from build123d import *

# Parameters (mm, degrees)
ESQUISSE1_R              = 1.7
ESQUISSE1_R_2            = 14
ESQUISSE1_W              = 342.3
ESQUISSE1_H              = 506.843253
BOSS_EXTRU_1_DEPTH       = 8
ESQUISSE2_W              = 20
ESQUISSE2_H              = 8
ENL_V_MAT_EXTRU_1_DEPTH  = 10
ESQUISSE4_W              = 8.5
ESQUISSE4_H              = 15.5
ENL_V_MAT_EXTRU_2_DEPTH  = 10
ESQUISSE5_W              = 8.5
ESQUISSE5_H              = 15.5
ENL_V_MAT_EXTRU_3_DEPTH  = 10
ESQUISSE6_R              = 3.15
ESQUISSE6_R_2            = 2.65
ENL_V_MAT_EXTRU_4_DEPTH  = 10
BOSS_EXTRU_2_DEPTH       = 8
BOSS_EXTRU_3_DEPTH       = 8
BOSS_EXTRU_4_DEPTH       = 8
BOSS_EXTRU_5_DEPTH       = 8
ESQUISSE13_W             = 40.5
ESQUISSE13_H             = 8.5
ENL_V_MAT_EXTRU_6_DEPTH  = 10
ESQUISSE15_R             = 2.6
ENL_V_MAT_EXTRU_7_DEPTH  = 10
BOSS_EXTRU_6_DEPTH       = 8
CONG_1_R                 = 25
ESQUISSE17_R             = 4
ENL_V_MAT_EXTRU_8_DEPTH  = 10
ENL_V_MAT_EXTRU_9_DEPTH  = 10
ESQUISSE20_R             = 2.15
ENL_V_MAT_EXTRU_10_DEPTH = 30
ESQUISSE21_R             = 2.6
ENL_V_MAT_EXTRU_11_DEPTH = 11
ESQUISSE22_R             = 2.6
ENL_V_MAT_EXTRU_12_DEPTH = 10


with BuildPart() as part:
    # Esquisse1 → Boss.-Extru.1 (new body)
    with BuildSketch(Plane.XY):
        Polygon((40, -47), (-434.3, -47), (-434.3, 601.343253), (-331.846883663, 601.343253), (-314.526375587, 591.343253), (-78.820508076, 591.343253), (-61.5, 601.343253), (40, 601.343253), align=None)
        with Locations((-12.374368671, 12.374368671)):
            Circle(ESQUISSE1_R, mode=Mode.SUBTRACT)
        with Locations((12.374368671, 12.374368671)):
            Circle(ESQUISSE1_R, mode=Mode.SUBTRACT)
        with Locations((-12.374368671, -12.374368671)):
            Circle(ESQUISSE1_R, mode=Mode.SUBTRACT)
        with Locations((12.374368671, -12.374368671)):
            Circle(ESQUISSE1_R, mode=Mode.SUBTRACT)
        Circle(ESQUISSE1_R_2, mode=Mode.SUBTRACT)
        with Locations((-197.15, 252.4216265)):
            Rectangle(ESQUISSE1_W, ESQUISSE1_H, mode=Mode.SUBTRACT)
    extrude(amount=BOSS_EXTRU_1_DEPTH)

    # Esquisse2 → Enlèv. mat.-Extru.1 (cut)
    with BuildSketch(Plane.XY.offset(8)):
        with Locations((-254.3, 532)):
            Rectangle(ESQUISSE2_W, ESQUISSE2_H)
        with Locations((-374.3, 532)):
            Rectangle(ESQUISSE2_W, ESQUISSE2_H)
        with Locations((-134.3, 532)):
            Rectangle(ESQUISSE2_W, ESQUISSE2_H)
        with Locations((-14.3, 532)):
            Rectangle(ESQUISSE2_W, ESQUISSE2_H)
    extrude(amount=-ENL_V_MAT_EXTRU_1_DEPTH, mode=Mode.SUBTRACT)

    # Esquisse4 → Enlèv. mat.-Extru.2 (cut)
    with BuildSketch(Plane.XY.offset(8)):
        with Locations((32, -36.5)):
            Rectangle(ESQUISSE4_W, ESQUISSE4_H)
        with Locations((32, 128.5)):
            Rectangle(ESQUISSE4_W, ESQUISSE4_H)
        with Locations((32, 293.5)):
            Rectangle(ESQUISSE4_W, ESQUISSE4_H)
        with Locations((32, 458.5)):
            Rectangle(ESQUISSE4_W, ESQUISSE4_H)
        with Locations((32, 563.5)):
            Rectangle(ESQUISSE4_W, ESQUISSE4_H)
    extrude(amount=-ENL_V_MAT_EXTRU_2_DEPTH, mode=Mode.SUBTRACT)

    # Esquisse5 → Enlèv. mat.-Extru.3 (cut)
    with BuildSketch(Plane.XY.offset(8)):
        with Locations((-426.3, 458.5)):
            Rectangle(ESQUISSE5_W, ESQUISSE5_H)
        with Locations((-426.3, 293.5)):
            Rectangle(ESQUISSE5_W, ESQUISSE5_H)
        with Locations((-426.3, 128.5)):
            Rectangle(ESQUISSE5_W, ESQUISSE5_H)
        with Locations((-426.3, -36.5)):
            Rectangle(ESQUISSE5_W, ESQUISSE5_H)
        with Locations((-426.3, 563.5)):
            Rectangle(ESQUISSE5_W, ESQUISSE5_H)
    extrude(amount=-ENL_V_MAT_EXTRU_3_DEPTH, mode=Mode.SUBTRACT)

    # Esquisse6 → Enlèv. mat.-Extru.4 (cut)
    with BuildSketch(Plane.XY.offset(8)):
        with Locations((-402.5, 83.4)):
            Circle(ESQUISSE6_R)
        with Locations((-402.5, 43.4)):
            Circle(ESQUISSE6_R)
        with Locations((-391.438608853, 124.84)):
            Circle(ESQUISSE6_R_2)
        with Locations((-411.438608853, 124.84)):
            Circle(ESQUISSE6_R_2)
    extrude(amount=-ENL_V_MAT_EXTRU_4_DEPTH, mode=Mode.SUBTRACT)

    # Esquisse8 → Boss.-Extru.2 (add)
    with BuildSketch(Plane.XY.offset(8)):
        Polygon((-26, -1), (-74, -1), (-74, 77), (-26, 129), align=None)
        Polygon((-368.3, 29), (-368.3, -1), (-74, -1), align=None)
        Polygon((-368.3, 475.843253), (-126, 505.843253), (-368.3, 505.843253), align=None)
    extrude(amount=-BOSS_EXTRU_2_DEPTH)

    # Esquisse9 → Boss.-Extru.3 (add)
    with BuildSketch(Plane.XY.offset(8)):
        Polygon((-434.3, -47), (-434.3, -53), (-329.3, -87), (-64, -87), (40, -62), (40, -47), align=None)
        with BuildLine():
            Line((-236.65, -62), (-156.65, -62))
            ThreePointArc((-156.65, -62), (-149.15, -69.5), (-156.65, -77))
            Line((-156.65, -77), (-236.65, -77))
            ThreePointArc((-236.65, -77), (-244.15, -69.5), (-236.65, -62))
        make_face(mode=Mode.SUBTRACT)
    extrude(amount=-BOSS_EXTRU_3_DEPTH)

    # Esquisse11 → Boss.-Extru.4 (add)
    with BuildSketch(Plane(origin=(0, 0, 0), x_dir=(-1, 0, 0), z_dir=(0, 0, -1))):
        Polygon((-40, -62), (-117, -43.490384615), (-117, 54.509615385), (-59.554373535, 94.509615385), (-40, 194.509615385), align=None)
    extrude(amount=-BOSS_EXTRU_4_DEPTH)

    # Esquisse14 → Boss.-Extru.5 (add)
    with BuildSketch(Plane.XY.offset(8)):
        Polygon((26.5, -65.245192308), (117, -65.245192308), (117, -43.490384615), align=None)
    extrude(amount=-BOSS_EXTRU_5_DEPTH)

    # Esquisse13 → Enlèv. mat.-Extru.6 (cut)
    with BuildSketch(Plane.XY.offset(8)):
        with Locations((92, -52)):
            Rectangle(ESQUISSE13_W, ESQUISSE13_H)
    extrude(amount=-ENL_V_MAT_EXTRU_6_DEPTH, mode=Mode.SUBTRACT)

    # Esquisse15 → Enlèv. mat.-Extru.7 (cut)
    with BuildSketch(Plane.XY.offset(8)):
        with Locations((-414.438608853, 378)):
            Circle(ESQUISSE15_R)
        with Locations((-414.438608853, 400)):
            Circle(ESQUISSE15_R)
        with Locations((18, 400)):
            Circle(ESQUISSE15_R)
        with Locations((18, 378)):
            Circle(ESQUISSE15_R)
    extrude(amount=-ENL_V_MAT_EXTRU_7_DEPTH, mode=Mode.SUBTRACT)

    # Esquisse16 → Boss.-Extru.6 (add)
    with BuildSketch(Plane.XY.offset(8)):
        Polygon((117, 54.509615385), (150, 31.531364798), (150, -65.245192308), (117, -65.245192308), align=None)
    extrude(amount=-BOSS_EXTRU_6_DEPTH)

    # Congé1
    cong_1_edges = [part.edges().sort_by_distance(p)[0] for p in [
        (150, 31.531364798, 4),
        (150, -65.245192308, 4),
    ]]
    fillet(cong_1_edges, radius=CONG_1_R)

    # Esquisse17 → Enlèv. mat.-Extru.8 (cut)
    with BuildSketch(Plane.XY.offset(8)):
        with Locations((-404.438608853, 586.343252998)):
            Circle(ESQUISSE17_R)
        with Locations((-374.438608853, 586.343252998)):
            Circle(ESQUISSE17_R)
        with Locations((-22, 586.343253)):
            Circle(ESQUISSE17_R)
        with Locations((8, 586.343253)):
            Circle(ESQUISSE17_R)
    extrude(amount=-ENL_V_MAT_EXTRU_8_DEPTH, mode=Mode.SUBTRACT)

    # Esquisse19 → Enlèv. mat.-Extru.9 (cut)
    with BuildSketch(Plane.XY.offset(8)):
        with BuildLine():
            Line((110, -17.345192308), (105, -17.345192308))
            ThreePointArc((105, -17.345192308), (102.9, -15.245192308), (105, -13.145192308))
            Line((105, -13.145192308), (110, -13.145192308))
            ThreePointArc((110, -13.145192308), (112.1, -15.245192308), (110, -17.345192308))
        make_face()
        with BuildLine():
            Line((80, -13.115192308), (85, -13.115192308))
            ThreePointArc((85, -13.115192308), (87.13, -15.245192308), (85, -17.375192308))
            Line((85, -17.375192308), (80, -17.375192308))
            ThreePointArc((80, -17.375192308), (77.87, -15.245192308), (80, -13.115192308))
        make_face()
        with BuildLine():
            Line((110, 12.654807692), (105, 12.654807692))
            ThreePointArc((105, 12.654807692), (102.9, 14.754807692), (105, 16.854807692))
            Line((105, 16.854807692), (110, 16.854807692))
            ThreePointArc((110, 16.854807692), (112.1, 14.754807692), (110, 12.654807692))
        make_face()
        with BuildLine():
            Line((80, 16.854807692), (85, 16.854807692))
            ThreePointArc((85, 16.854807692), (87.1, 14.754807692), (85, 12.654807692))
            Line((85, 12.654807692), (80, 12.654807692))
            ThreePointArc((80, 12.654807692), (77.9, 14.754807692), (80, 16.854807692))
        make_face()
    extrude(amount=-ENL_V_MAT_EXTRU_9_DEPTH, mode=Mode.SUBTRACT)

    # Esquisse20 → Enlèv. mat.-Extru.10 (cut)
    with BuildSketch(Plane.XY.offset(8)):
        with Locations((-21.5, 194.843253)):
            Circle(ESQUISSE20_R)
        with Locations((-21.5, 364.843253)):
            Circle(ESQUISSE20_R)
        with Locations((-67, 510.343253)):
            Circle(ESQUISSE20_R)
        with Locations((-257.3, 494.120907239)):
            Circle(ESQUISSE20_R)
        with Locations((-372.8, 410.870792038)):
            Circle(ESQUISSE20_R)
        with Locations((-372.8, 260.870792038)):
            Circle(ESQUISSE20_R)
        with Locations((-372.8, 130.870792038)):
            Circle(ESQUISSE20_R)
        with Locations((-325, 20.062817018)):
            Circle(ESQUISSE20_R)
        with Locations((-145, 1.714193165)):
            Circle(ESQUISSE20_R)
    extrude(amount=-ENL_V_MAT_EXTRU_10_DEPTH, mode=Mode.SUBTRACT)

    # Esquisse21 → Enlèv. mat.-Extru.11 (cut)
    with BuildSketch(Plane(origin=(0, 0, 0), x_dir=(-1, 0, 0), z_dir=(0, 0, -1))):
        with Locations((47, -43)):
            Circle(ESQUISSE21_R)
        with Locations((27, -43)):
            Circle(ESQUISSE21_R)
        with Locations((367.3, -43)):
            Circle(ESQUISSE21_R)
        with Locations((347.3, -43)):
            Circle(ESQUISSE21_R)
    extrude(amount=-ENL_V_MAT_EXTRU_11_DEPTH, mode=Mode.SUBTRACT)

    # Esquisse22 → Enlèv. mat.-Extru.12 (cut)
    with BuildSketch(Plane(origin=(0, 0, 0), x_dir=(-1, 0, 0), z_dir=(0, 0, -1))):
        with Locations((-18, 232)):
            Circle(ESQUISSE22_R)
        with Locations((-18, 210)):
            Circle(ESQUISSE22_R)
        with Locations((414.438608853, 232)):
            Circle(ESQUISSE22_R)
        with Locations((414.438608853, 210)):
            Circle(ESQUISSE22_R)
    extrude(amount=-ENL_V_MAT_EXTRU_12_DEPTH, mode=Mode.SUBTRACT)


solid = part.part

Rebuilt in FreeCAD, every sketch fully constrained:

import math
import FreeCAD as App
import Part
import Sketcher
Q = App.Units.Quantity


def edges_at(feature, points):
    """Names of the edges that pass closest to the given points."""
    edges = feature.Shape.Edges
    near = lambda p: min(range(len(edges)), key=lambda i: edges[i].distToShape(Part.Vertex(*p))[0])
    return sorted({f"Edge{near(p) + 1}" for p in points})

doc = App.newDocument("Part")
body = doc.addObject("PartDesign::Body", "Body")

# Sketch on XY plane
sketch1 = body.newObject("Sketcher::SketchObject", "Sketch")
sketch1.AttachmentSupport = (doc.getObject("XY_Plane"), [""])
sketch1.MapMode = "FlatFace"
sketch1.addGeometry([
    Part.LineSegment(App.Vector(-434.3, -47, 0), App.Vector(40, -47, 0)),  # 0
    Part.LineSegment(App.Vector(40, -47, 0), App.Vector(40, 601.3, 0)),  # 1
    Part.LineSegment(App.Vector(40, 601.3, 0), App.Vector(-61.5, 601.3, 0)),  # 2
    Part.LineSegment(App.Vector(-61.5, 601.3, 0), App.Vector(-78.8, 591.3, 0)),  # 3
    Part.LineSegment(App.Vector(-78.8, 591.3, 0), App.Vector(-314.5, 591.3, 0)),  # 4
    Part.LineSegment(App.Vector(-314.5, 591.3, 0), App.Vector(-331.8, 601.3, 0)),  # 5
    Part.LineSegment(App.Vector(-331.8, 601.3, 0), App.Vector(-434.3, 601.3, 0)),  # 6
    Part.LineSegment(App.Vector(-434.3, 601.3, 0), App.Vector(-434.3, -47, 0)),  # 7
    Part.Circle(App.Vector(12.4, -12.4, 0), App.Vector(0, 0, 1), 1.7),  # 8
    Part.Circle(App.Vector(0, 0, 0), App.Vector(0, 0, 1), 14),  # 9
    Part.Circle(App.Vector(12.4, 12.4, 0), App.Vector(0, 0, 1), 1.7),  # 10
    Part.Circle(App.Vector(-12.4, -12.4, 0), App.Vector(0, 0, 1), 1.7),  # 11
    Part.Circle(App.Vector(-12.4, 12.4, 0), App.Vector(0, 0, 1), 1.7),  # 12
    Part.LineSegment(App.Vector(-368.3, -1, 0), App.Vector(-368.3, 505.8, 0)),  # 13
    Part.LineSegment(App.Vector(-368.3, 505.8, 0), App.Vector(-26, 505.8, 0)),  # 14
    Part.LineSegment(App.Vector(-26, 505.8, 0), App.Vector(-26, -1, 0)),  # 15
    Part.LineSegment(App.Vector(-26, -1, 0), App.Vector(-368.3, -1, 0)),  # 16
], False)
sketch1.addConstraint([
    Sketcher.Constraint("Coincident", 0, 2, 1, 1),
    Sketcher.Constraint("Coincident", 1, 2, 2, 1),
    Sketcher.Constraint("Coincident", 2, 2, 3, 1),
    Sketcher.Constraint("Coincident", 3, 2, 4, 1),
    Sketcher.Constraint("Coincident", 4, 2, 5, 1),
    Sketcher.Constraint("Coincident", 5, 2, 6, 1),
    Sketcher.Constraint("Coincident", 6, 2, 7, 1),
    Sketcher.Constraint("Coincident", 7, 2, 0, 1),
    Sketcher.Constraint("Coincident", 13, 2, 14, 1),
    Sketcher.Constraint("Coincident", 14, 2, 15, 1),
    Sketcher.Constraint("Coincident", 15, 2, 16, 1),
    Sketcher.Constraint("Coincident", 16, 2, 13, 1),
    Sketcher.Constraint("Horizontal", 0),
    Sketcher.Constraint("Vertical", 1),
    Sketcher.Constraint("Horizontal", 2),
    Sketcher.Constraint("Horizontal", 4),
    Sketcher.Constraint("Horizontal", 6),
    Sketcher.Constraint("Vertical", 7),
    Sketcher.Constraint("Vertical", 13),
    Sketcher.Constraint("Horizontal", 14),
    Sketcher.Constraint("Vertical", 15),
    Sketcher.Constraint("Horizontal", 16),
    Sketcher.Constraint("Coincident", 9, 3, -1, 1),
    Sketcher.Constraint("Equal", 8, 10),
    Sketcher.Constraint("Equal", 10, 11),
    Sketcher.Constraint("Equal", 11, 12),
    Sketcher.Constraint("Symmetric", 10, 3, 11, 3, -1, 1),
    Sketcher.Constraint("Symmetric", 8, 3, 12, 3, -1, 1),
    Sketcher.Constraint("Symmetric", 8, 3, 11, 3, -2),
    Sketcher.Constraint("Horizontal", 2, 2, 5, 2),
    Sketcher.Constraint("Equal", 3, 5),
    Sketcher.Constraint("Diameter", 9, Q("28 mm")),
    Sketcher.Constraint("Diameter", 8, Q("3.4 mm")),
    Sketcher.Constraint("Angle", 3, Q("-150 deg")),
    Sketcher.Constraint("Distance", 3, Q("20 mm")),
    Sketcher.Constraint("DistanceX", 0, 1, 0, 2, Q("474.3 mm")),
    Sketcher.Constraint("DistanceX", 2, 2, 2, 1, Q("101.5 mm")),
    Sketcher.Constraint("DistanceX", 14, 1, 14, 2, Q("342.3 mm")),
    Sketcher.Constraint("DistanceX", -1, 1, 0, 2, Q("40 mm")),
    Sketcher.Constraint("DistanceY", 0, 2, -1, 1, Q("47 mm")),
    Sketcher.Constraint("DistanceX", 14, 2, -1, 1, Q("26 mm")),
    Sketcher.Constraint("DistanceY", 15, 2, -1, 1, Q("1 mm")),
    Sketcher.Constraint("DistanceY", 13, 2, 4, 2, Q("85.5 mm")),
    Sketcher.Constraint("DistanceX", 4, 2, 4, 1, Q("235.705868 mm")),
    Sketcher.Constraint("DistanceY", 1, 1, 1, 2, Q("648.343253 mm")),
    Sketcher.Constraint("DistanceX", -1, 1, 8, 3, Q("12.374369 mm")),
    Sketcher.Constraint("DistanceY", 8, 3, -1, 1, Q("12.374369 mm")),
])
pad1 = body.newObject("PartDesign::Pad", "Pad")
pad1.Profile = sketch1
pad1.Length = 8

# Sketch on XY plane
sketch2 = body.newObject("Sketcher::SketchObject", "Sketch001")
sketch2.AttachmentSupport = (doc.getObject("XY_Plane"), [""])
sketch2.MapMode = "FlatFace"
sketch2.AttachmentOffset = App.Placement(App.Vector(0, 0, 8), App.Rotation())
sketch2.addGeometry([
    Part.LineSegment(App.Vector(-264, 536, 0), App.Vector(-264, 528, 0)),  # 0
    Part.LineSegment(App.Vector(-264, 528, 0), App.Vector(-244, 528, 0)),  # 1
    Part.LineSegment(App.Vector(-244, 528, 0), App.Vector(-244, 536, 0)),  # 2
    Part.LineSegment(App.Vector(-244, 536, 0), App.Vector(-264, 536, 0)),  # 3
    Part.LineSegment(App.Vector(-384, 536, 0), App.Vector(-384, 528, 0)),  # 4
    Part.LineSegment(App.Vector(-384, 528, 0), App.Vector(-364, 528, 0)),  # 5
    Part.LineSegment(App.Vector(-364, 528, 0), App.Vector(-364, 536, 0)),  # 6
    Part.LineSegment(App.Vector(-364, 536, 0), App.Vector(-384, 536, 0)),  # 7
    Part.LineSegment(App.Vector(-144, 536, 0), App.Vector(-144, 528, 0)),  # 8
    Part.LineSegment(App.Vector(-144, 528, 0), App.Vector(-124, 528, 0)),  # 9
    Part.LineSegment(App.Vector(-124, 528, 0), App.Vector(-124, 536, 0)),  # 10
    Part.LineSegment(App.Vector(-124, 536, 0), App.Vector(-144, 536, 0)),  # 11
    Part.LineSegment(App.Vector(-24, 536, 0), App.Vector(-24, 528, 0)),  # 12
    Part.LineSegment(App.Vector(-24, 528, 0), App.Vector(-4, 528, 0)),  # 13
    Part.LineSegment(App.Vector(-4, 528, 0), App.Vector(-4, 536, 0)),  # 14
    Part.LineSegment(App.Vector(-4, 536, 0), App.Vector(-24, 536, 0)),  # 15
], False)
sketch2.addConstraint([
    Sketcher.Constraint("Coincident", 0, 2, 1, 1),
    Sketcher.Constraint("Coincident", 1, 2, 2, 1),
    Sketcher.Constraint("Coincident", 2, 2, 3, 1),
    Sketcher.Constraint("Coincident", 3, 2, 0, 1),
    Sketcher.Constraint("Coincident", 4, 2, 5, 1),
    Sketcher.Constraint("Coincident", 5, 2, 6, 1),
    Sketcher.Constraint("Coincident", 6, 2, 7, 1),
    Sketcher.Constraint("Coincident", 7, 2, 4, 1),
    Sketcher.Constraint("Coincident", 8, 2, 9, 1),
    Sketcher.Constraint("Coincident", 9, 2, 10, 1),
    Sketcher.Constraint("Coincident", 10, 2, 11, 1),
    Sketcher.Constraint("Coincident", 11, 2, 8, 1),
    Sketcher.Constraint("Coincident", 12, 2, 13, 1),
    Sketcher.Constraint("Coincident", 13, 2, 14, 1),
    Sketcher.Constraint("Coincident", 14, 2, 15, 1),
    Sketcher.Constraint("Coincident", 15, 2, 12, 1),
    Sketcher.Constraint("Vertical", 0),
    Sketcher.Constraint("Horizontal", 1),
    Sketcher.Constraint("Vertical", 2),
    Sketcher.Constraint("Horizontal", 3),
    Sketcher.Constraint("Vertical", 4),
    Sketcher.Constraint("Horizontal", 5),
    Sketcher.Constraint("Vertical", 6),
    Sketcher.Constraint("Horizontal", 7),
    Sketcher.Constraint("Vertical", 8),
    Sketcher.Constraint("Horizontal", 9),
    Sketcher.Constraint("Vertical", 10),
    Sketcher.Constraint("Horizontal", 11),
    Sketcher.Constraint("Vertical", 12),
    Sketcher.Constraint("Horizontal", 13),
    Sketcher.Constraint("Vertical", 14),
    Sketcher.Constraint("Horizontal", 15),
    Sketcher.Constraint("Horizontal", 1, 2, 4, 2),
    Sketcher.Constraint("Horizontal", 3, 2, 6, 2),
    Sketcher.Constraint("Horizontal", 5, 2, 8, 2),
    Sketcher.Constraint("Horizontal", 7, 2, 10, 2),
    Sketcher.Constraint("Horizontal", 9, 2, 12, 2),
    Sketcher.Constraint("Horizontal", 11, 2, 14, 2),
    Sketcher.Constraint("Equal", 3, 5),
    Sketcher.Constraint("Equal", 7, 9),
    Sketcher.Constraint("Equal", 11, 13),
    Sketcher.Constraint("DistanceX", 1, 1, 1, 2, Q("20 mm")),
    Sketcher.Constraint("DistanceY", 0, 2, 0, 1, Q("8 mm")),
    Sketcher.Constraint("DistanceY", -1, 1, 0, 2, Q("528 mm")),
    Sketcher.Constraint("DistanceX", 4, 2, 0, 2, Q("120 mm")),
    Sketcher.Constraint("DistanceX", 1, 2, 8, 2, Q("100 mm")),
    Sketcher.Constraint("DistanceX", 9, 2, 12, 2, Q("100 mm")),
    Sketcher.Constraint("DistanceX", 0, 2, -1, 1, Q("264.3 mm")),
])
pocket1 = body.newObject("PartDesign::Pocket", "Pocket")
pocket1.Profile = sketch2
pocket1.Length = 10

# Sketch on XY plane
sketch3 = body.newObject("Sketcher::SketchObject", "Sketch002")
sketch3.AttachmentSupport = (doc.getObject("XY_Plane"), [""])
sketch3.MapMode = "FlatFace"
sketch3.AttachmentOffset = App.Placement(App.Vector(0, 0, 8), App.Rotation())
sketch3.addGeometry([
    Part.LineSegment(App.Vector(28, -29, 0), App.Vector(28, -44, 0)),  # 0
    Part.LineSegment(App.Vector(28, -44, 0), App.Vector(36, -44, 0)),  # 1
    Part.LineSegment(App.Vector(36, -44, 0), App.Vector(36, -29, 0)),  # 2
    Part.LineSegment(App.Vector(36, -29, 0), App.Vector(28, -29, 0)),  # 3
    Part.LineSegment(App.Vector(28, 136, 0), App.Vector(28, 121, 0)),  # 4
    Part.LineSegment(App.Vector(28, 121, 0), App.Vector(36, 121, 0)),  # 5
    Part.LineSegment(App.Vector(36, 121, 0), App.Vector(36, 136, 0)),  # 6
    Part.LineSegment(App.Vector(36, 136, 0), App.Vector(28, 136, 0)),  # 7
    Part.LineSegment(App.Vector(28, 301, 0), App.Vector(28, 286, 0)),  # 8
    Part.LineSegment(App.Vector(28, 286, 0), App.Vector(36, 286, 0)),  # 9
    Part.LineSegment(App.Vector(36, 286, 0), App.Vector(36, 301, 0)),  # 10
    Part.LineSegment(App.Vector(36, 301, 0), App.Vector(28, 301, 0)),  # 11
    Part.LineSegment(App.Vector(28, 466, 0), App.Vector(28, 451, 0)),  # 12
    Part.LineSegment(App.Vector(28, 451, 0), App.Vector(36, 451, 0)),  # 13
    Part.LineSegment(App.Vector(36, 451, 0), App.Vector(36, 466, 0)),  # 14
    Part.LineSegment(App.Vector(36, 466, 0), App.Vector(28, 466, 0)),  # 15
    Part.LineSegment(App.Vector(28, 571, 0), App.Vector(28, 556, 0)),  # 16
    Part.LineSegment(App.Vector(28, 556, 0), App.Vector(36, 556, 0)),  # 17
    Part.LineSegment(App.Vector(36, 556, 0), App.Vector(36, 571, 0)),  # 18
    Part.LineSegment(App.Vector(36, 571, 0), App.Vector(28, 571, 0)),  # 19
], False)
sketch3.addConstraint([
    Sketcher.Constraint("Coincident", 0, 2, 1, 1),
    Sketcher.Constraint("Coincident", 1, 2, 2, 1),
    Sketcher.Constraint("Coincident", 2, 2, 3, 1),
    Sketcher.Constraint("Coincident", 3, 2, 0, 1),
    Sketcher.Constraint("Coincident", 4, 2, 5, 1),
    Sketcher.Constraint("Coincident", 5, 2, 6, 1),
    Sketcher.Constraint("Coincident", 6, 2, 7, 1),
    Sketcher.Constraint("Coincident", 7, 2, 4, 1),
    Sketcher.Constraint("Coincident", 8, 2, 9, 1),
    Sketcher.Constraint("Coincident", 9, 2, 10, 1),
    Sketcher.Constraint("Coincident", 10, 2, 11, 1),
    Sketcher.Constraint("Coincident", 11, 2, 8, 1),
    Sketcher.Constraint("Coincident", 12, 2, 13, 1),
    Sketcher.Constraint("Coincident", 13, 2, 14, 1),
    Sketcher.Constraint("Coincident", 14, 2, 15, 1),
    Sketcher.Constraint("Coincident", 15, 2, 12, 1),
    Sketcher.Constraint("Coincident", 16, 2, 17, 1),
    Sketcher.Constraint("Coincident", 17, 2, 18, 1),
    Sketcher.Constraint("Coincident", 18, 2, 19, 1),
    Sketcher.Constraint("Coincident", 19, 2, 16, 1),
    Sketcher.Constraint("Vertical", 0),
    Sketcher.Constraint("Horizontal", 1),
    Sketcher.Constraint("Vertical", 2),
    Sketcher.Constraint("Horizontal", 3),
    Sketcher.Constraint("Vertical", 4),
    Sketcher.Constraint("Horizontal", 5),
    Sketcher.Constraint("Vertical", 6),
    Sketcher.Constraint("Horizontal", 7),
    Sketcher.Constraint("Vertical", 8),
    Sketcher.Constraint("Horizontal", 9),
    Sketcher.Constraint("Vertical", 10),
    Sketcher.Constraint("Horizontal", 11),
    Sketcher.Constraint("Vertical", 12),
    Sketcher.Constraint("Horizontal", 13),
    Sketcher.Constraint("Vertical", 14),
    Sketcher.Constraint("Horizontal", 15),
    Sketcher.Constraint("Vertical", 16),
    Sketcher.Constraint("Horizontal", 17),
    Sketcher.Constraint("Vertical", 18),
    Sketcher.Constraint("Horizontal", 19),
    Sketcher.Constraint("Vertical", 3, 2, 4, 2),
    Sketcher.Constraint("Vertical", 2, 2, 5, 2),
    Sketcher.Constraint("Vertical", 7, 2, 8, 2),
    Sketcher.Constraint("Vertical", 6, 2, 9, 2),
    Sketcher.Constraint("Vertical", 11, 2, 12, 2),
    Sketcher.Constraint("Vertical", 10, 2, 13, 2),
    Sketcher.Constraint("Vertical", 15, 2, 16, 2),
    Sketcher.Constraint("Vertical", 14, 2, 17, 2),
    Sketcher.Constraint("Equal", 2, 4),
    Sketcher.Constraint("Equal", 6, 8),
    Sketcher.Constraint("Equal", 10, 12),
    Sketcher.Constraint("Equal", 14, 16),
    Sketcher.Constraint("DistanceX", 1, 1, 1, 2, Q("8.5 mm")),
    Sketcher.Constraint("DistanceY", 0, 2, 0, 1, Q("15.5 mm")),
    Sketcher.Constraint("DistanceY", 0, 2, 4, 2, Q("165 mm")),
    Sketcher.Constraint("DistanceY", 4, 2, 8, 2, Q("165 mm")),
    Sketcher.Constraint("DistanceY", 8, 2, 12, 2, Q("165 mm")),
    Sketcher.Constraint("DistanceY", 12, 2, 16, 2, Q("105 mm")),
    Sketcher.Constraint("DistanceX", -1, 1, 0, 2, Q("27.75 mm")),
    Sketcher.Constraint("DistanceY", 0, 2, -1, 1, Q("44.25 mm")),
])
pocket2 = body.newObject("PartDesign::Pocket", "Pocket001")
pocket2.Profile = sketch3
pocket2.Length = 10

# Sketch on XY plane
sketch4 = body.newObject("Sketcher::SketchObject", "Sketch003")
sketch4.AttachmentSupport = (doc.getObject("XY_Plane"), [""])
sketch4.MapMode = "FlatFace"
sketch4.AttachmentOffset = App.Placement(App.Vector(0, 0, 8), App.Rotation())
sketch4.addGeometry([
    Part.LineSegment(App.Vector(-431, 466, 0), App.Vector(-431, 451, 0)),  # 0
    Part.LineSegment(App.Vector(-431, 451, 0), App.Vector(-422, 451, 0)),  # 1
    Part.LineSegment(App.Vector(-422, 451, 0), App.Vector(-422, 466, 0)),  # 2
    Part.LineSegment(App.Vector(-422, 466, 0), App.Vector(-431, 466, 0)),  # 3
    Part.LineSegment(App.Vector(-431, 301, 0), App.Vector(-431, 286, 0)),  # 4
    Part.LineSegment(App.Vector(-431, 286, 0), App.Vector(-422, 286, 0)),  # 5
    Part.LineSegment(App.Vector(-422, 286, 0), App.Vector(-422, 301, 0)),  # 6
    Part.LineSegment(App.Vector(-422, 301, 0), App.Vector(-431, 301, 0)),  # 7
    Part.LineSegment(App.Vector(-431, 136, 0), App.Vector(-431, 121, 0)),  # 8
    Part.LineSegment(App.Vector(-431, 121, 0), App.Vector(-422, 121, 0)),  # 9
    Part.LineSegment(App.Vector(-422, 121, 0), App.Vector(-422, 136, 0)),  # 10
    Part.LineSegment(App.Vector(-422, 136, 0), App.Vector(-431, 136, 0)),  # 11
    Part.LineSegment(App.Vector(-431, -29, 0), App.Vector(-431, -44, 0)),  # 12
    Part.LineSegment(App.Vector(-431, -44, 0), App.Vector(-422, -44, 0)),  # 13
    Part.LineSegment(App.Vector(-422, -44, 0), App.Vector(-422, -29, 0)),  # 14
    Part.LineSegment(App.Vector(-422, -29, 0), App.Vector(-431, -29, 0)),  # 15
    Part.LineSegment(App.Vector(-431, 571, 0), App.Vector(-431, 556, 0)),  # 16
    Part.LineSegment(App.Vector(-431, 556, 0), App.Vector(-422, 556, 0)),  # 17
    Part.LineSegment(App.Vector(-422, 556, 0), App.Vector(-422, 571, 0)),  # 18
    Part.LineSegment(App.Vector(-422, 571, 0), App.Vector(-431, 571, 0)),  # 19
], False)
sketch4.addConstraint([
    Sketcher.Constraint("Coincident", 0, 2, 1, 1),
    Sketcher.Constraint("Coincident", 1, 2, 2, 1),
    Sketcher.Constraint("Coincident", 2, 2, 3, 1),
    Sketcher.Constraint("Coincident", 3, 2, 0, 1),
    Sketcher.Constraint("Coincident", 4, 2, 5, 1),
    Sketcher.Constraint("Coincident", 5, 2, 6, 1),
    Sketcher.Constraint("Coincident", 6, 2, 7, 1),
    Sketcher.Constraint("Coincident", 7, 2, 4, 1),
    Sketcher.Constraint("Coincident", 8, 2, 9, 1),
    Sketcher.Constraint("Coincident", 9, 2, 10, 1),
    Sketcher.Constraint("Coincident", 10, 2, 11, 1),
    Sketcher.Constraint("Coincident", 11, 2, 8, 1),
    Sketcher.Constraint("Coincident", 12, 2, 13, 1),
    Sketcher.Constraint("Coincident", 13, 2, 14, 1),
    Sketcher.Constraint("Coincident", 14, 2, 15, 1),
    Sketcher.Constraint("Coincident", 15, 2, 12, 1),
    Sketcher.Constraint("Coincident", 16, 2, 17, 1),
    Sketcher.Constraint("Coincident", 17, 2, 18, 1),
    Sketcher.Constraint("Coincident", 18, 2, 19, 1),
    Sketcher.Constraint("Coincident", 19, 2, 16, 1),
    Sketcher.Constraint("Vertical", 0),
    Sketcher.Constraint("Horizontal", 1),
    Sketcher.Constraint("Vertical", 2),
    Sketcher.Constraint("Horizontal", 3),
    Sketcher.Constraint("Vertical", 4),
    Sketcher.Constraint("Horizontal", 5),
    Sketcher.Constraint("Vertical", 6),
    Sketcher.Constraint("Horizontal", 7),
    Sketcher.Constraint("Vertical", 8),
    Sketcher.Constraint("Horizontal", 9),
    Sketcher.Constraint("Vertical", 10),
    Sketcher.Constraint("Horizontal", 11),
    Sketcher.Constraint("Vertical", 12),
    Sketcher.Constraint("Horizontal", 13),
    Sketcher.Constraint("Vertical", 14),
    Sketcher.Constraint("Horizontal", 15),
    Sketcher.Constraint("Vertical", 16),
    Sketcher.Constraint("Horizontal", 17),
    Sketcher.Constraint("Vertical", 18),
    Sketcher.Constraint("Horizontal", 19),
    Sketcher.Constraint("Vertical", 3, 2, 4, 2),
    Sketcher.Constraint("Vertical", 2, 2, 5, 2),
    Sketcher.Constraint("Vertical", 7, 2, 8, 2),
    Sketcher.Constraint("Vertical", 6, 2, 9, 2),
    Sketcher.Constraint("Vertical", 11, 2, 12, 2),
    Sketcher.Constraint("Vertical", 10, 2, 13, 2),
    Sketcher.Constraint("Vertical", 15, 2, 16, 2),
    Sketcher.Constraint("Vertical", 14, 2, 17, 2),
    Sketcher.Constraint("Equal", 2, 4),
    Sketcher.Constraint("Equal", 6, 8),
    Sketcher.Constraint("Equal", 10, 12),
    Sketcher.Constraint("Equal", 14, 16),
    Sketcher.Constraint("DistanceX", 1, 1, 1, 2, Q("8.5 mm")),
    Sketcher.Constraint("DistanceY", 0, 2, 0, 1, Q("15.5 mm")),
    Sketcher.Constraint("DistanceY", 4, 2, 0, 2, Q("165 mm")),
    Sketcher.Constraint("DistanceY", 8, 2, 4, 2, Q("165 mm")),
    Sketcher.Constraint("DistanceY", 12, 2, 8, 2, Q("165 mm")),
    Sketcher.Constraint("DistanceY", 0, 2, 16, 2, Q("105 mm")),
    Sketcher.Constraint("DistanceX", 0, 2, -1, 1, Q("430.55 mm")),
    Sketcher.Constraint("DistanceY", -1, 1, 0, 2, Q("450.75 mm")),
])
pocket3 = body.newObject("PartDesign::Pocket", "Pocket002")
pocket3.Profile = sketch4
pocket3.Length = 10

# Sketch on XY plane
sketch5 = body.newObject("Sketcher::SketchObject", "Sketch004")
sketch5.AttachmentSupport = (doc.getObject("XY_Plane"), [""])
sketch5.MapMode = "FlatFace"
sketch5.AttachmentOffset = App.Placement(App.Vector(0, 0, 8), App.Rotation())
sketch5.addGeometry([
    Part.Circle(App.Vector(-402.5, 83.4, 0), App.Vector(0, 0, 1), 3.1),
    Part.Circle(App.Vector(-402.5, 43.4, 0), App.Vector(0, 0, 1), 3.1),
    Part.Circle(App.Vector(-391.4, 124.8, 0), App.Vector(0, 0, 1), 2.6),
    Part.Circle(App.Vector(-411.4, 124.8, 0), App.Vector(0, 0, 1), 2.6),
], False)
sketch5.addConstraint([
    Sketcher.Constraint("Equal", 0, 1),
    Sketcher.Constraint("Equal", 2, 3),
    Sketcher.Constraint("Horizontal", 2, 3, 3, 3),
    Sketcher.Constraint("Vertical", 0, 3, 1, 3),
    Sketcher.Constraint("Diameter", 0, Q("6.3 mm")),
    Sketcher.Constraint("Diameter", 2, Q("5.3 mm")),
    Sketcher.Constraint("DistanceY", 1, 3, 0, 3, Q("40 mm")),
    Sketcher.Constraint("DistanceX", 3, 3, 2, 3, Q("20 mm")),
    Sketcher.Constraint("DistanceX", 0, 3, -1, 1, Q("402.5 mm")),
    Sketcher.Constraint("DistanceY", -1, 1, 0, 3, Q("83.4 mm")),
    Sketcher.Constraint("DistanceY", -1, 1, 2, 3, Q("124.84 mm")),
    Sketcher.Constraint("DistanceX", 2, 3, -1, 1, Q("391.438609 mm")),
])
pocket4 = body.newObject("PartDesign::Pocket", "Pocket003")
pocket4.Profile = sketch5
pocket4.Length = 10

# Sketch on XY plane
sketch6 = body.newObject("Sketcher::SketchObject", "Sketch005")
sketch6.AttachmentSupport = (doc.getObject("XY_Plane"), [""])
sketch6.MapMode = "FlatFace"
sketch6.AttachmentOffset = App.Placement(App.Vector(0, 0, 8), App.Rotation())
sketch6.addGeometry([
    Part.LineSegment(App.Vector(-74, -1, 0), App.Vector(-26, -1, 0)),  # 0
    Part.LineSegment(App.Vector(-26, -1, 0), App.Vector(-26, 129, 0)),  # 1
    Part.LineSegment(App.Vector(-26, 129, 0), App.Vector(-74, 77, 0)),  # 2
    Part.LineSegment(App.Vector(-74, 77, 0), App.Vector(-74, -1, 0)),  # 3
    Part.LineSegment(App.Vector(-368, 29, 0), App.Vector(-368, -1, 0)),  # 4
    Part.LineSegment(App.Vector(-368, -1, 0), App.Vector(-74, -1, 0)),  # 5
    Part.LineSegment(App.Vector(-74, -1, 0), App.Vector(-368, 29, 0)),  # 6
    Part.LineSegment(App.Vector(-368, 476, 0), App.Vector(-126, 506, 0)),  # 7
    Part.LineSegment(App.Vector(-126, 506, 0), App.Vector(-368, 506, 0)),  # 8
    Part.LineSegment(App.Vector(-368, 506, 0), App.Vector(-368, 476, 0)),  # 9
], False)
sketch6.addConstraint([
    Sketcher.Constraint("Coincident", 0, 2, 1, 1),
    Sketcher.Constraint("Coincident", 1, 2, 2, 1),
    Sketcher.Constraint("Coincident", 2, 2, 3, 1),
    Sketcher.Constraint("Coincident", 3, 2, 0, 1),
    Sketcher.Constraint("Coincident", 4, 2, 5, 1),
    Sketcher.Constraint("Coincident", 5, 2, 6, 1),
    Sketcher.Constraint("Coincident", 6, 2, 4, 1),
    Sketcher.Constraint("Coincident", 7, 2, 8, 1),
    Sketcher.Constraint("Coincident", 8, 2, 9, 1),
    Sketcher.Constraint("Coincident", 9, 2, 7, 1),
    Sketcher.Constraint("Horizontal", 0),
    Sketcher.Constraint("Vertical", 1),
    Sketcher.Constraint("Vertical", 3),
    Sketcher.Constraint("Vertical", 4),
    Sketcher.Constraint("Horizontal", 5),
    Sketcher.Constraint("Horizontal", 8),
    Sketcher.Constraint("Vertical", 9),
    Sketcher.Constraint("Coincident", 5, 2, 3, 2),
    Sketcher.Constraint("Vertical", 6, 2, 8, 2),
    Sketcher.Constraint("Equal", 4, 9),
    Sketcher.Constraint("DistanceX", 0, 1, 0, 2, Q("48 mm")),
    Sketcher.Constraint("DistanceY", 1, 1, 1, 2, Q("130 mm")),
    Sketcher.Constraint("DistanceY", 3, 2, 3, 1, Q("78 mm")),
    Sketcher.Constraint("DistanceY", 4, 2, 4, 1, Q("30 mm")),
    Sketcher.Constraint("DistanceX", 5, 1, 5, 2, Q("294.3 mm")),
    Sketcher.Constraint("DistanceX", 8, 2, 8, 1, Q("242.3 mm")),
    Sketcher.Constraint("DistanceX", 0, 2, -1, 1, Q("26 mm")),
    Sketcher.Constraint("DistanceY", 0, 2, -1, 1, Q("1 mm")),
    Sketcher.Constraint("DistanceY", -1, 1, 7, 2, Q("505.843253 mm")),
])
pad2 = body.newObject("PartDesign::Pad", "Pad001")
pad2.Profile = sketch6
pad2.Length = 8
pad2.Reversed = True

# Sketch on XY plane
sketch7 = body.newObject("Sketcher::SketchObject", "Sketch006")
sketch7.AttachmentSupport = (doc.getObject("XY_Plane"), [""])
sketch7.MapMode = "FlatFace"
sketch7.AttachmentOffset = App.Placement(App.Vector(0, 0, 8), App.Rotation())
sketch7.addGeometry([
    Part.LineSegment(App.Vector(-434, -47, 0), App.Vector(-434, -53, 0)),  # 0
    Part.LineSegment(App.Vector(-434, -53, 0), App.Vector(-329, -87, 0)),  # 1
    Part.LineSegment(App.Vector(-329, -87, 0), App.Vector(-64, -87, 0)),  # 2
    Part.LineSegment(App.Vector(-64, -87, 0), App.Vector(40, -62, 0)),  # 3
    Part.LineSegment(App.Vector(40, -62, 0), App.Vector(40, -47, 0)),  # 4
    Part.LineSegment(App.Vector(40, -47, 0), App.Vector(-434, -47, 0)),  # 5
    Part.ArcOfCircle(Part.Circle(App.Vector(-237, -70, 0), App.Vector(0, 0, 1), 8), math.radians(90), math.radians(270)),  # 6
    Part.LineSegment(App.Vector(-237, -62, 0), App.Vector(-157, -62, 0)),  # 7
    Part.ArcOfCircle(Part.Circle(App.Vector(-157, -70, 0), App.Vector(0, 0, 1), 8), math.radians(-90), math.radians(90)),  # 8
    Part.LineSegment(App.Vector(-157, -77, 0), App.Vector(-237, -77, 0)),  # 9
], False)
sketch7.addConstraint([
    Sketcher.Constraint("Coincident", 0, 2, 1, 1),
    Sketcher.Constraint("Coincident", 1, 2, 2, 1),
    Sketcher.Constraint("Coincident", 2, 2, 3, 1),
    Sketcher.Constraint("Coincident", 3, 2, 4, 1),
    Sketcher.Constraint("Coincident", 4, 2, 5, 1),
    Sketcher.Constraint("Coincident", 5, 2, 0, 1),
    Sketcher.Constraint("Tangent", 6, 1, 7, 1),
    Sketcher.Constraint("Tangent", 7, 2, 8, 2),
    Sketcher.Constraint("Tangent", 8, 1, 9, 1),
    Sketcher.Constraint("Tangent", 9, 2, 6, 2),
    Sketcher.Constraint("Vertical", 0),
    Sketcher.Constraint("Horizontal", 2),
    Sketcher.Constraint("Vertical", 4),
    Sketcher.Constraint("Horizontal", 5),
    Sketcher.Constraint("Horizontal", 7),
    Sketcher.Constraint("Horizontal", 9),
    Sketcher.Constraint("Horizontal", 3, 2, 6, 1),
    Sketcher.Constraint("Radius", 6, Q("7.5 mm")),
    Sketcher.Constraint("DistanceX", 7, 1, 7, 2, Q("80 mm")),
    Sketcher.Constraint("DistanceY", 0, 2, 0, 1, Q("6 mm")),
    Sketcher.Constraint("DistanceY", 4, 1, 4, 2, Q("15 mm")),
    Sketcher.Constraint("DistanceX", 2, 1, 2, 2, Q("265.3 mm")),
    Sketcher.Constraint("DistanceX", 5, 2, 5, 1, Q("474.3 mm")),
    Sketcher.Constraint("DistanceY", 0, 2, -1, 1, Q("53 mm")),
    Sketcher.Constraint("DistanceY", 1, 2, -1, 1, Q("87 mm")),
    Sketcher.Constraint("DistanceX", 2, 2, -1, 1, Q("64 mm")),
    Sketcher.Constraint("DistanceX", -1, 1, 3, 2, Q("40 mm")),
    Sketcher.Constraint("DistanceX", 6, 3, -1, 1, Q("236.65 mm")),
])
pad3 = body.newObject("PartDesign::Pad", "Pad002")
pad3.Profile = sketch7
pad3.Length = 8
pad3.Reversed = True

# Sketch on XY plane
sketch8 = body.newObject("Sketcher::SketchObject", "Sketch007")
sketch8.AttachmentSupport = (doc.getObject("XY_Plane"), [""])
sketch8.MapMode = "FlatFace"
sketch8.addGeometry([
    Part.LineSegment(App.Vector(117, -43, 0), App.Vector(40, -62, 0)),  # 0
    Part.LineSegment(App.Vector(40, -62, 0), App.Vector(40, 195, 0)),  # 1
    Part.LineSegment(App.Vector(40, 195, 0), App.Vector(60, 95, 0)),  # 2
    Part.LineSegment(App.Vector(60, 95, 0), App.Vector(117, 55, 0)),  # 3
    Part.LineSegment(App.Vector(117, 55, 0), App.Vector(117, -43, 0)),  # 4
], False)
sketch8.addConstraint([
    Sketcher.Constraint("Coincident", 0, 2, 1, 1),
    Sketcher.Constraint("Coincident", 1, 2, 2, 1),
    Sketcher.Constraint("Coincident", 2, 2, 3, 1),
    Sketcher.Constraint("Coincident", 3, 2, 4, 1),
    Sketcher.Constraint("Coincident", 4, 2, 0, 1),
    Sketcher.Constraint("Vertical", 1),
    Sketcher.Constraint("Vertical", 4),
    Sketcher.Constraint("DistanceY", 4, 2, 4, 1, Q("98 mm")),
    Sketcher.Constraint("Distance", 3, Q("70 mm")),
    Sketcher.Constraint("DistanceX", -1, 1, 0, 2, Q("40 mm")),
    Sketcher.Constraint("DistanceY", 0, 2, -1, 1, Q("62 mm")),
    Sketcher.Constraint("DistanceX", -1, 1, 3, 2, Q("117 mm")),
    Sketcher.Constraint("DistanceY", 2, 2, 1, 2, Q("100 mm")),
    Sketcher.Constraint("DistanceY", 3, 2, 2, 2, Q("40 mm")),
    Sketcher.Constraint("Distance", 0, Q("79.193471 mm")),
])
pad4 = body.newObject("PartDesign::Pad", "Pad003")
pad4.Profile = sketch8
pad4.Length = 8

# Sketch on XY plane
sketch9 = body.newObject("Sketcher::SketchObject", "Sketch008")
sketch9.AttachmentSupport = (doc.getObject("XY_Plane"), [""])
sketch9.MapMode = "FlatFace"
sketch9.AttachmentOffset = App.Placement(App.Vector(0, 0, 8), App.Rotation())
sketch9.addGeometry([
    Part.LineSegment(App.Vector(26, -65, 0), App.Vector(117, -65, 0)),
    Part.LineSegment(App.Vector(117, -65, 0), App.Vector(117, -43, 0)),
    Part.LineSegment(App.Vector(117, -43, 0), App.Vector(26, -65, 0)),
], False)
sketch9.addConstraint([
    Sketcher.Constraint("Coincident", 0, 2, 1, 1),
    Sketcher.Constraint("Coincident", 1, 2, 2, 1),
    Sketcher.Constraint("Coincident", 2, 2, 0, 1),
    Sketcher.Constraint("Horizontal", 0),
    Sketcher.Constraint("Vertical", 1),
    Sketcher.Constraint("DistanceX", 0, 1, 0, 2, Q("90.5 mm")),
    Sketcher.Constraint("DistanceX", -1, 1, 0, 2, Q("117 mm")),
    Sketcher.Constraint("Distance", 2, Q("93.078041 mm")),
    Sketcher.Constraint("DistanceY", 0, 2, -1, 1, Q("65.245192 mm")),
])
pad5 = body.newObject("PartDesign::Pad", "Pad004")
pad5.Profile = sketch9
pad5.Length = 8
pad5.Reversed = True

# Sketch on XY plane
sketch10 = body.newObject("Sketcher::SketchObject", "Sketch009")
sketch10.AttachmentSupport = (doc.getObject("XY_Plane"), [""])
sketch10.MapMode = "FlatFace"
sketch10.AttachmentOffset = App.Placement(App.Vector(0, 0, 8), App.Rotation())
sketch10.addGeometry([
    Part.LineSegment(App.Vector(72, -48, 0), App.Vector(72, -56, 0)),
    Part.LineSegment(App.Vector(72, -56, 0), App.Vector(112, -56, 0)),
    Part.LineSegment(App.Vector(112, -56, 0), App.Vector(112, -48, 0)),
    Part.LineSegment(App.Vector(112, -48, 0), App.Vector(72, -48, 0)),
], False)
sketch10.addConstraint([
    Sketcher.Constraint("Coincident", 0, 2, 1, 1),
    Sketcher.Constraint("Coincident", 1, 2, 2, 1),
    Sketcher.Constraint("Coincident", 2, 2, 3, 1),
    Sketcher.Constraint("Coincident", 3, 2, 0, 1),
    Sketcher.Constraint("Vertical", 0),
    Sketcher.Constraint("Horizontal", 1),
    Sketcher.Constraint("Vertical", 2),
    Sketcher.Constraint("Horizontal", 3),
    Sketcher.Constraint("DistanceX", 1, 1, 1, 2, Q("40.5 mm")),
    Sketcher.Constraint("DistanceY", 0, 2, 0, 1, Q("8.5 mm")),
    Sketcher.Constraint("DistanceX", -1, 1, 0, 2, Q("71.75 mm")),
    Sketcher.Constraint("DistanceY", 0, 2, -1, 1, Q("56.25 mm")),
])
pocket5 = body.newObject("PartDesign::Pocket", "Pocket004")
pocket5.Profile = sketch10
pocket5.Length = 10

# Sketch on XY plane
sketch11 = body.newObject("Sketcher::SketchObject", "Sketch010")
sketch11.AttachmentSupport = (doc.getObject("XY_Plane"), [""])
sketch11.MapMode = "FlatFace"
sketch11.AttachmentOffset = App.Placement(App.Vector(0, 0, 8), App.Rotation())
sketch11.addGeometry([
    Part.Circle(App.Vector(-414.4, 378, 0), App.Vector(0, 0, 1), 2.6),
    Part.Circle(App.Vector(-414.4, 400, 0), App.Vector(0, 0, 1), 2.6),
    Part.Circle(App.Vector(18, 400, 0), App.Vector(0, 0, 1), 2.6),
    Part.Circle(App.Vector(18, 378, 0), App.Vector(0, 0, 1), 2.6),
], False)
sketch11.addConstraint([
    Sketcher.Constraint("Equal", 0, 1),
    Sketcher.Constraint("Equal", 1, 2),
    Sketcher.Constraint("Equal", 2, 3),
    Sketcher.Constraint("Horizontal", 1, 3, 2, 3),
    Sketcher.Constraint("Horizontal", 0, 3, 3, 3),
    Sketcher.Constraint("Vertical", 0, 3, 1, 3),
    Sketcher.Constraint("Vertical", 2, 3, 3, 3),
    Sketcher.Constraint("Diameter", 0, Q("5.2 mm")),
    Sketcher.Constraint("DistanceY", -1, 1, 0, 3, Q("378 mm")),
    Sketcher.Constraint("DistanceY", -1, 1, 1, 3, Q("400 mm")),
    Sketcher.Constraint("DistanceX", -1, 1, 2, 3, Q("18 mm")),
    Sketcher.Constraint("DistanceX", 0, 3, -1, 1, Q("414.438609 mm")),
])
pocket6 = body.newObject("PartDesign::Pocket", "Pocket005")
pocket6.Profile = sketch11
pocket6.Length = 10

# Sketch on XY plane
sketch12 = body.newObject("Sketcher::SketchObject", "Sketch011")
sketch12.AttachmentSupport = (doc.getObject("XY_Plane"), [""])
sketch12.MapMode = "FlatFace"
sketch12.AttachmentOffset = App.Placement(App.Vector(0, 0, 8), App.Rotation())
sketch12.addGeometry([
    Part.LineSegment(App.Vector(150, 32, 0), App.Vector(117, 55, 0)),
    Part.LineSegment(App.Vector(117, 55, 0), App.Vector(117, -65, 0)),
    Part.LineSegment(App.Vector(117, -65, 0), App.Vector(150, -65, 0)),
    Part.LineSegment(App.Vector(150, -65, 0), App.Vector(150, 32, 0)),
], False)
sketch12.addConstraint([
    Sketcher.Constraint("Coincident", 0, 2, 1, 1),
    Sketcher.Constraint("Coincident", 1, 2, 2, 1),
    Sketcher.Constraint("Coincident", 2, 2, 3, 1),
    Sketcher.Constraint("Coincident", 3, 2, 0, 1),
    Sketcher.Constraint("Vertical", 1),
    Sketcher.Constraint("Horizontal", 2),
    Sketcher.Constraint("Vertical", 3),
    Sketcher.Constraint("DistanceX", 2, 1, 2, 2, Q("33 mm")),
    Sketcher.Constraint("DistanceX", -1, 1, 0, 2, Q("117 mm")),
    Sketcher.Constraint("Distance", 0, Q("40.211939 mm")),
    Sketcher.Constraint("DistanceY", 1, 2, 1, 1, Q("119.754808 mm")),
    Sketcher.Constraint("DistanceY", -1, 1, 0, 2, Q("54.509615 mm")),
])
pad6 = body.newObject("PartDesign::Pad", "Pad005")
pad6.Profile = sketch12
pad6.Length = 8
pad6.Reversed = True
doc.recompute()

fillet = body.newObject("PartDesign::Fillet", "Fillet")
fillet.Base = (pad6, edges_at(pad6, [(150, 31.531, 4), (150, -65.245, 4)]))
fillet.Radius = 25

# Sketch on XY plane
sketch13 = body.newObject("Sketcher::SketchObject", "Sketch012")
sketch13.AttachmentSupport = (doc.getObject("XY_Plane"), [""])
sketch13.MapMode = "FlatFace"
sketch13.AttachmentOffset = App.Placement(App.Vector(0, 0, 8), App.Rotation())
sketch13.addGeometry([
    Part.Circle(App.Vector(-404.4, 586.3, 0), App.Vector(0, 0, 1), 4),
    Part.Circle(App.Vector(-374.4, 586.3, 0), App.Vector(0, 0, 1), 4),
    Part.Circle(App.Vector(-22, 586.3, 0), App.Vector(0, 0, 1), 4),
    Part.Circle(App.Vector(8, 586.3, 0), App.Vector(0, 0, 1), 4),
], False)
sketch13.addConstraint([
    Sketcher.Constraint("Equal", 0, 1),
    Sketcher.Constraint("Equal", 1, 2),
    Sketcher.Constraint("Equal", 2, 3),
    Sketcher.Constraint("Horizontal", 0, 3, 1, 3),
    Sketcher.Constraint("Horizontal", 1, 3, 2, 3),
    Sketcher.Constraint("Horizontal", 2, 3, 3, 3),
    Sketcher.Constraint("Diameter", 0, Q("8 mm")),
    Sketcher.Constraint("DistanceX", 2, 3, -1, 1, Q("22 mm")),
    Sketcher.Constraint("DistanceX", -1, 1, 3, 3, Q("8 mm")),
    Sketcher.Constraint("DistanceX", 0, 3, 1, 3, Q("30 mm")),
    Sketcher.Constraint("DistanceX", 0, 3, -1, 1, Q("404.438609 mm")),
    Sketcher.Constraint("DistanceY", -1, 1, 0, 3, Q("586.343253 mm")),
])
pocket7 = body.newObject("PartDesign::Pocket", "Pocket006")
pocket7.Profile = sketch13
pocket7.Length = 10

# Sketch on XY plane
sketch14 = body.newObject("Sketcher::SketchObject", "Sketch013")
sketch14.AttachmentSupport = (doc.getObject("XY_Plane"), [""])
sketch14.MapMode = "FlatFace"
sketch14.AttachmentOffset = App.Placement(App.Vector(0, 0, 8), App.Rotation())
sketch14.addGeometry([
    Part.LineSegment(App.Vector(105, -17.3, 0), App.Vector(110, -17.3, 0)),  # 0
    Part.ArcOfCircle(Part.Circle(App.Vector(110, -15.2, 0), App.Vector(0, 0, 1), 2.1), math.radians(-90), math.radians(90)),  # 1
    Part.LineSegment(App.Vector(110, -13.1, 0), App.Vector(105, -13.1, 0)),  # 2
    Part.ArcOfCircle(Part.Circle(App.Vector(105, -15.2, 0), App.Vector(0, 0, 1), 2.1), math.radians(90), math.radians(270)),  # 3
    Part.LineSegment(App.Vector(85, -13.1, 0), App.Vector(80, -13.1, 0)),  # 4
    Part.ArcOfCircle(Part.Circle(App.Vector(80, -15.2, 0), App.Vector(0, 0, 1), 2.1), math.radians(90), math.radians(270)),  # 5
    Part.LineSegment(App.Vector(80, -17.4, 0), App.Vector(85, -17.4, 0)),  # 6
    Part.ArcOfCircle(Part.Circle(App.Vector(85, -15.2, 0), App.Vector(0, 0, 1), 2.1), math.radians(-90), math.radians(90)),  # 7
    Part.LineSegment(App.Vector(105, 12.7, 0), App.Vector(110, 12.7, 0)),  # 8
    Part.ArcOfCircle(Part.Circle(App.Vector(110, 14.8, 0), App.Vector(0, 0, 1), 2.1), math.radians(-90), math.radians(90)),  # 9
    Part.LineSegment(App.Vector(110, 16.9, 0), App.Vector(105, 16.9, 0)),  # 10
    Part.ArcOfCircle(Part.Circle(App.Vector(105, 14.8, 0), App.Vector(0, 0, 1), 2.1), math.radians(90), math.radians(270)),  # 11
    Part.LineSegment(App.Vector(85, 16.9, 0), App.Vector(80, 16.9, 0)),  # 12
    Part.ArcOfCircle(Part.Circle(App.Vector(80, 14.8, 0), App.Vector(0, 0, 1), 2.1), math.radians(90), math.radians(270)),  # 13
    Part.LineSegment(App.Vector(80, 12.7, 0), App.Vector(85, 12.7, 0)),  # 14
    Part.ArcOfCircle(Part.Circle(App.Vector(85, 14.8, 0), App.Vector(0, 0, 1), 2.1), math.radians(-90), math.radians(90)),  # 15
], False)
sketch14.addConstraint([
    Sketcher.Constraint("Tangent", 0, 2, 1, 1),
    Sketcher.Constraint("Tangent", 1, 2, 2, 1),
    Sketcher.Constraint("Tangent", 2, 2, 3, 1),
    Sketcher.Constraint("Tangent", 3, 2, 0, 1),
    Sketcher.Constraint("Tangent", 4, 2, 5, 1),
    Sketcher.Constraint("Tangent", 5, 2, 6, 1),
    Sketcher.Constraint("Tangent", 6, 2, 7, 1),
    Sketcher.Constraint("Tangent", 7, 2, 4, 1),
    Sketcher.Constraint("Tangent", 8, 2, 9, 1),
    Sketcher.Constraint("Tangent", 9, 2, 10, 1),
    Sketcher.Constraint("Tangent", 10, 2, 11, 1),
    Sketcher.Constraint("Tangent", 11, 2, 8, 1),
    Sketcher.Constraint("Tangent", 12, 2, 13, 1),
    Sketcher.Constraint("Tangent", 13, 2, 14, 1),
    Sketcher.Constraint("Tangent", 14, 2, 15, 1),
    Sketcher.Constraint("Tangent", 15, 2, 12, 1),
    Sketcher.Constraint("Horizontal", 0),
    Sketcher.Constraint("Horizontal", 2),
    Sketcher.Constraint("Horizontal", 4),
    Sketcher.Constraint("Horizontal", 6),
    Sketcher.Constraint("Horizontal", 8),
    Sketcher.Constraint("Horizontal", 10),
    Sketcher.Constraint("Horizontal", 12),
    Sketcher.Constraint("Horizontal", 14),
    Sketcher.Constraint("Equal", 3, 9),
    Sketcher.Constraint("Equal", 11, 13),
    Sketcher.Constraint("Horizontal", 3, 3, 5, 3),
    Sketcher.Constraint("Horizontal", 11, 3, 13, 3),
    Sketcher.Constraint("Vertical", 1, 3, 9, 3),
    Sketcher.Constraint("Vertical", 3, 3, 11, 3),
    Sketcher.Constraint("Vertical", 5, 3, 13, 3),
    Sketcher.Constraint("Vertical", 7, 3, 15, 3),
    Sketcher.Constraint("Equal", 2, 4),
    Sketcher.Constraint("Radius", 1, Q("2.1 mm")),
    Sketcher.Constraint("DistanceX", 0, 1, 0, 2, Q("5 mm")),
    Sketcher.Constraint("Radius", 5, Q("2.13 mm")),
    Sketcher.Constraint("DistanceX", -1, 1, 1, 3, Q("110 mm")),
    Sketcher.Constraint("DistanceX", -1, 1, 5, 3, Q("80 mm")),
    Sketcher.Constraint("DistanceY", 1, 3, 9, 3, Q("30 mm")),
    Sketcher.Constraint("DistanceY", 1, 3, -1, 1, Q("15.245192 mm")),
])
pocket8 = body.newObject("PartDesign::Pocket", "Pocket007")
pocket8.Profile = sketch14
pocket8.Length = 10

# Sketch on XY plane
sketch15 = body.newObject("Sketcher::SketchObject", "Sketch014")
sketch15.AttachmentSupport = (doc.getObject("XY_Plane"), [""])
sketch15.MapMode = "FlatFace"
sketch15.AttachmentOffset = App.Placement(App.Vector(0, 0, 8), App.Rotation())
sketch15.addGeometry([
    Part.Circle(App.Vector(-21.5, 194.8, 0), App.Vector(0, 0, 1), 2.1),  # 0
    Part.Circle(App.Vector(-21.5, 364.8, 0), App.Vector(0, 0, 1), 2.1),  # 1
    Part.Circle(App.Vector(-67, 510.3, 0), App.Vector(0, 0, 1), 2.1),  # 2
    Part.Circle(App.Vector(-257.3, 494.1, 0), App.Vector(0, 0, 1), 2.1),  # 3
    Part.Circle(App.Vector(-372.8, 410.9, 0), App.Vector(0, 0, 1), 2.1),  # 4
    Part.Circle(App.Vector(-372.8, 260.9, 0), App.Vector(0, 0, 1), 2.1),  # 5
    Part.Circle(App.Vector(-372.8, 130.9, 0), App.Vector(0, 0, 1), 2.1),  # 6
    Part.Circle(App.Vector(-325, 20.1, 0), App.Vector(0, 0, 1), 2.1),  # 7
    Part.Circle(App.Vector(-145, 1.7, 0), App.Vector(0, 0, 1), 2.1),  # 8
], False)
sketch15.addConstraint([
    Sketcher.Constraint("Equal", 0, 1),
    Sketcher.Constraint("Equal", 1, 2),
    Sketcher.Constraint("Equal", 2, 3),
    Sketcher.Constraint("Equal", 3, 4),
    Sketcher.Constraint("Equal", 4, 5),
    Sketcher.Constraint("Equal", 5, 6),
    Sketcher.Constraint("Equal", 6, 7),
    Sketcher.Constraint("Equal", 7, 8),
    Sketcher.Constraint("Vertical", 0, 3, 1, 3),
    Sketcher.Constraint("Vertical", 4, 3, 5, 3),
    Sketcher.Constraint("Vertical", 5, 3, 6, 3),
    Sketcher.Constraint("Diameter", 0, Q("4.3 mm")),
    Sketcher.Constraint("DistanceX", 2, 3, -1, 1, Q("67 mm")),
    Sketcher.Constraint("DistanceX", 7, 3, -1, 1, Q("325 mm")),
    Sketcher.Constraint("DistanceX", 8, 3, -1, 1, Q("145 mm")),
    Sketcher.Constraint("DistanceY", 0, 3, 1, 3, Q("170 mm")),
    Sketcher.Constraint("DistanceY", 5, 3, 4, 3, Q("150 mm")),
    Sketcher.Constraint("DistanceY", 6, 3, 5, 3, Q("130 mm")),
    Sketcher.Constraint("DistanceX", 0, 3, -1, 1, Q("21.5 mm")),
    Sketcher.Constraint("DistanceX", 3, 3, -1, 1, Q("257.3 mm")),
    Sketcher.Constraint("DistanceX", 4, 3, -1, 1, Q("372.8 mm")),
    Sketcher.Constraint("DistanceY", 1, 3, 2, 3, Q("145.5 mm")),
    Sketcher.Constraint("DistanceY", 8, 3, 6, 3, Q("129.156599 mm")),
    Sketcher.Constraint("DistanceY", 4, 3, 2, 3, Q("99.472461 mm")),
    Sketcher.Constraint("DistanceY", -1, 1, 0, 3, Q("194.843253 mm")),
    Sketcher.Constraint("DistanceY", -1, 1, 3, 3, Q("494.120907 mm")),
    Sketcher.Constraint("DistanceY", -1, 1, 7, 3, Q("20.062817 mm")),
])
pocket9 = body.newObject("PartDesign::Pocket", "Pocket008")
pocket9.Profile = sketch15
pocket9.Length = 30

# Sketch on XY plane
sketch16 = body.newObject("Sketcher::SketchObject", "Sketch015")
sketch16.AttachmentSupport = (doc.getObject("XY_Plane"), [""])
sketch16.MapMode = "FlatFace"
sketch16.addGeometry([
    Part.Circle(App.Vector(-47, -43, 0), App.Vector(0, 0, 1), 2.6),
    Part.Circle(App.Vector(-27, -43, 0), App.Vector(0, 0, 1), 2.6),
    Part.Circle(App.Vector(-367.3, -43, 0), App.Vector(0, 0, 1), 2.6),
    Part.Circle(App.Vector(-347.3, -43, 0), App.Vector(0, 0, 1), 2.6),
], False)
sketch16.addConstraint([
    Sketcher.Constraint("Equal", 0, 1),
    Sketcher.Constraint("Equal", 1, 2),
    Sketcher.Constraint("Equal", 2, 3),
    Sketcher.Constraint("Horizontal", 0, 3, 1, 3),
    Sketcher.Constraint("Horizontal", 1, 3, 2, 3),
    Sketcher.Constraint("Horizontal", 2, 3, 3, 3),
    Sketcher.Constraint("Diameter", 0, Q("5.2 mm")),
    Sketcher.Constraint("DistanceX", 0, 3, -1, 1, Q("47 mm")),
    Sketcher.Constraint("DistanceY", 0, 3, -1, 1, Q("43 mm")),
    Sketcher.Constraint("DistanceX", 1, 3, -1, 1, Q("27 mm")),
    Sketcher.Constraint("DistanceX", 2, 3, 3, 3, Q("20 mm")),
    Sketcher.Constraint("DistanceX", 2, 3, -1, 1, Q("367.3 mm")),
])
pocket10 = body.newObject("PartDesign::Pocket", "Pocket009")
pocket10.Profile = sketch16
pocket10.Length = 11
pocket10.Reversed = True

# Sketch on XY plane
sketch17 = body.newObject("Sketcher::SketchObject", "Sketch016")
sketch17.AttachmentSupport = (doc.getObject("XY_Plane"), [""])
sketch17.MapMode = "FlatFace"
sketch17.addGeometry([
    Part.Circle(App.Vector(18, 232, 0), App.Vector(0, 0, 1), 2.6),
    Part.Circle(App.Vector(18, 210, 0), App.Vector(0, 0, 1), 2.6),
    Part.Circle(App.Vector(-414.4, 232, 0), App.Vector(0, 0, 1), 2.6),
    Part.Circle(App.Vector(-414.4, 210, 0), App.Vector(0, 0, 1), 2.6),
], False)
sketch17.addConstraint([
    Sketcher.Constraint("Equal", 0, 1),
    Sketcher.Constraint("Equal", 1, 2),
    Sketcher.Constraint("Equal", 2, 3),
    Sketcher.Constraint("Horizontal", 0, 3, 2, 3),
    Sketcher.Constraint("Horizontal", 1, 3, 3, 3),
    Sketcher.Constraint("Vertical", 0, 3, 1, 3),
    Sketcher.Constraint("Vertical", 2, 3, 3, 3),
    Sketcher.Constraint("Diameter", 0, Q("5.2 mm")),
    Sketcher.Constraint("DistanceX", -1, 1, 0, 3, Q("18 mm")),
    Sketcher.Constraint("DistanceY", -1, 1, 0, 3, Q("232 mm")),
    Sketcher.Constraint("DistanceY", -1, 1, 1, 3, Q("210 mm")),
    Sketcher.Constraint("DistanceX", 2, 3, -1, 1, Q("414.438609 mm")),
])
pocket11 = body.newObject("PartDesign::Pocket", "Pocket010")
pocket11.Profile = sketch17
pocket11.Length = 10
pocket11.Reversed = True

doc.recompute()
